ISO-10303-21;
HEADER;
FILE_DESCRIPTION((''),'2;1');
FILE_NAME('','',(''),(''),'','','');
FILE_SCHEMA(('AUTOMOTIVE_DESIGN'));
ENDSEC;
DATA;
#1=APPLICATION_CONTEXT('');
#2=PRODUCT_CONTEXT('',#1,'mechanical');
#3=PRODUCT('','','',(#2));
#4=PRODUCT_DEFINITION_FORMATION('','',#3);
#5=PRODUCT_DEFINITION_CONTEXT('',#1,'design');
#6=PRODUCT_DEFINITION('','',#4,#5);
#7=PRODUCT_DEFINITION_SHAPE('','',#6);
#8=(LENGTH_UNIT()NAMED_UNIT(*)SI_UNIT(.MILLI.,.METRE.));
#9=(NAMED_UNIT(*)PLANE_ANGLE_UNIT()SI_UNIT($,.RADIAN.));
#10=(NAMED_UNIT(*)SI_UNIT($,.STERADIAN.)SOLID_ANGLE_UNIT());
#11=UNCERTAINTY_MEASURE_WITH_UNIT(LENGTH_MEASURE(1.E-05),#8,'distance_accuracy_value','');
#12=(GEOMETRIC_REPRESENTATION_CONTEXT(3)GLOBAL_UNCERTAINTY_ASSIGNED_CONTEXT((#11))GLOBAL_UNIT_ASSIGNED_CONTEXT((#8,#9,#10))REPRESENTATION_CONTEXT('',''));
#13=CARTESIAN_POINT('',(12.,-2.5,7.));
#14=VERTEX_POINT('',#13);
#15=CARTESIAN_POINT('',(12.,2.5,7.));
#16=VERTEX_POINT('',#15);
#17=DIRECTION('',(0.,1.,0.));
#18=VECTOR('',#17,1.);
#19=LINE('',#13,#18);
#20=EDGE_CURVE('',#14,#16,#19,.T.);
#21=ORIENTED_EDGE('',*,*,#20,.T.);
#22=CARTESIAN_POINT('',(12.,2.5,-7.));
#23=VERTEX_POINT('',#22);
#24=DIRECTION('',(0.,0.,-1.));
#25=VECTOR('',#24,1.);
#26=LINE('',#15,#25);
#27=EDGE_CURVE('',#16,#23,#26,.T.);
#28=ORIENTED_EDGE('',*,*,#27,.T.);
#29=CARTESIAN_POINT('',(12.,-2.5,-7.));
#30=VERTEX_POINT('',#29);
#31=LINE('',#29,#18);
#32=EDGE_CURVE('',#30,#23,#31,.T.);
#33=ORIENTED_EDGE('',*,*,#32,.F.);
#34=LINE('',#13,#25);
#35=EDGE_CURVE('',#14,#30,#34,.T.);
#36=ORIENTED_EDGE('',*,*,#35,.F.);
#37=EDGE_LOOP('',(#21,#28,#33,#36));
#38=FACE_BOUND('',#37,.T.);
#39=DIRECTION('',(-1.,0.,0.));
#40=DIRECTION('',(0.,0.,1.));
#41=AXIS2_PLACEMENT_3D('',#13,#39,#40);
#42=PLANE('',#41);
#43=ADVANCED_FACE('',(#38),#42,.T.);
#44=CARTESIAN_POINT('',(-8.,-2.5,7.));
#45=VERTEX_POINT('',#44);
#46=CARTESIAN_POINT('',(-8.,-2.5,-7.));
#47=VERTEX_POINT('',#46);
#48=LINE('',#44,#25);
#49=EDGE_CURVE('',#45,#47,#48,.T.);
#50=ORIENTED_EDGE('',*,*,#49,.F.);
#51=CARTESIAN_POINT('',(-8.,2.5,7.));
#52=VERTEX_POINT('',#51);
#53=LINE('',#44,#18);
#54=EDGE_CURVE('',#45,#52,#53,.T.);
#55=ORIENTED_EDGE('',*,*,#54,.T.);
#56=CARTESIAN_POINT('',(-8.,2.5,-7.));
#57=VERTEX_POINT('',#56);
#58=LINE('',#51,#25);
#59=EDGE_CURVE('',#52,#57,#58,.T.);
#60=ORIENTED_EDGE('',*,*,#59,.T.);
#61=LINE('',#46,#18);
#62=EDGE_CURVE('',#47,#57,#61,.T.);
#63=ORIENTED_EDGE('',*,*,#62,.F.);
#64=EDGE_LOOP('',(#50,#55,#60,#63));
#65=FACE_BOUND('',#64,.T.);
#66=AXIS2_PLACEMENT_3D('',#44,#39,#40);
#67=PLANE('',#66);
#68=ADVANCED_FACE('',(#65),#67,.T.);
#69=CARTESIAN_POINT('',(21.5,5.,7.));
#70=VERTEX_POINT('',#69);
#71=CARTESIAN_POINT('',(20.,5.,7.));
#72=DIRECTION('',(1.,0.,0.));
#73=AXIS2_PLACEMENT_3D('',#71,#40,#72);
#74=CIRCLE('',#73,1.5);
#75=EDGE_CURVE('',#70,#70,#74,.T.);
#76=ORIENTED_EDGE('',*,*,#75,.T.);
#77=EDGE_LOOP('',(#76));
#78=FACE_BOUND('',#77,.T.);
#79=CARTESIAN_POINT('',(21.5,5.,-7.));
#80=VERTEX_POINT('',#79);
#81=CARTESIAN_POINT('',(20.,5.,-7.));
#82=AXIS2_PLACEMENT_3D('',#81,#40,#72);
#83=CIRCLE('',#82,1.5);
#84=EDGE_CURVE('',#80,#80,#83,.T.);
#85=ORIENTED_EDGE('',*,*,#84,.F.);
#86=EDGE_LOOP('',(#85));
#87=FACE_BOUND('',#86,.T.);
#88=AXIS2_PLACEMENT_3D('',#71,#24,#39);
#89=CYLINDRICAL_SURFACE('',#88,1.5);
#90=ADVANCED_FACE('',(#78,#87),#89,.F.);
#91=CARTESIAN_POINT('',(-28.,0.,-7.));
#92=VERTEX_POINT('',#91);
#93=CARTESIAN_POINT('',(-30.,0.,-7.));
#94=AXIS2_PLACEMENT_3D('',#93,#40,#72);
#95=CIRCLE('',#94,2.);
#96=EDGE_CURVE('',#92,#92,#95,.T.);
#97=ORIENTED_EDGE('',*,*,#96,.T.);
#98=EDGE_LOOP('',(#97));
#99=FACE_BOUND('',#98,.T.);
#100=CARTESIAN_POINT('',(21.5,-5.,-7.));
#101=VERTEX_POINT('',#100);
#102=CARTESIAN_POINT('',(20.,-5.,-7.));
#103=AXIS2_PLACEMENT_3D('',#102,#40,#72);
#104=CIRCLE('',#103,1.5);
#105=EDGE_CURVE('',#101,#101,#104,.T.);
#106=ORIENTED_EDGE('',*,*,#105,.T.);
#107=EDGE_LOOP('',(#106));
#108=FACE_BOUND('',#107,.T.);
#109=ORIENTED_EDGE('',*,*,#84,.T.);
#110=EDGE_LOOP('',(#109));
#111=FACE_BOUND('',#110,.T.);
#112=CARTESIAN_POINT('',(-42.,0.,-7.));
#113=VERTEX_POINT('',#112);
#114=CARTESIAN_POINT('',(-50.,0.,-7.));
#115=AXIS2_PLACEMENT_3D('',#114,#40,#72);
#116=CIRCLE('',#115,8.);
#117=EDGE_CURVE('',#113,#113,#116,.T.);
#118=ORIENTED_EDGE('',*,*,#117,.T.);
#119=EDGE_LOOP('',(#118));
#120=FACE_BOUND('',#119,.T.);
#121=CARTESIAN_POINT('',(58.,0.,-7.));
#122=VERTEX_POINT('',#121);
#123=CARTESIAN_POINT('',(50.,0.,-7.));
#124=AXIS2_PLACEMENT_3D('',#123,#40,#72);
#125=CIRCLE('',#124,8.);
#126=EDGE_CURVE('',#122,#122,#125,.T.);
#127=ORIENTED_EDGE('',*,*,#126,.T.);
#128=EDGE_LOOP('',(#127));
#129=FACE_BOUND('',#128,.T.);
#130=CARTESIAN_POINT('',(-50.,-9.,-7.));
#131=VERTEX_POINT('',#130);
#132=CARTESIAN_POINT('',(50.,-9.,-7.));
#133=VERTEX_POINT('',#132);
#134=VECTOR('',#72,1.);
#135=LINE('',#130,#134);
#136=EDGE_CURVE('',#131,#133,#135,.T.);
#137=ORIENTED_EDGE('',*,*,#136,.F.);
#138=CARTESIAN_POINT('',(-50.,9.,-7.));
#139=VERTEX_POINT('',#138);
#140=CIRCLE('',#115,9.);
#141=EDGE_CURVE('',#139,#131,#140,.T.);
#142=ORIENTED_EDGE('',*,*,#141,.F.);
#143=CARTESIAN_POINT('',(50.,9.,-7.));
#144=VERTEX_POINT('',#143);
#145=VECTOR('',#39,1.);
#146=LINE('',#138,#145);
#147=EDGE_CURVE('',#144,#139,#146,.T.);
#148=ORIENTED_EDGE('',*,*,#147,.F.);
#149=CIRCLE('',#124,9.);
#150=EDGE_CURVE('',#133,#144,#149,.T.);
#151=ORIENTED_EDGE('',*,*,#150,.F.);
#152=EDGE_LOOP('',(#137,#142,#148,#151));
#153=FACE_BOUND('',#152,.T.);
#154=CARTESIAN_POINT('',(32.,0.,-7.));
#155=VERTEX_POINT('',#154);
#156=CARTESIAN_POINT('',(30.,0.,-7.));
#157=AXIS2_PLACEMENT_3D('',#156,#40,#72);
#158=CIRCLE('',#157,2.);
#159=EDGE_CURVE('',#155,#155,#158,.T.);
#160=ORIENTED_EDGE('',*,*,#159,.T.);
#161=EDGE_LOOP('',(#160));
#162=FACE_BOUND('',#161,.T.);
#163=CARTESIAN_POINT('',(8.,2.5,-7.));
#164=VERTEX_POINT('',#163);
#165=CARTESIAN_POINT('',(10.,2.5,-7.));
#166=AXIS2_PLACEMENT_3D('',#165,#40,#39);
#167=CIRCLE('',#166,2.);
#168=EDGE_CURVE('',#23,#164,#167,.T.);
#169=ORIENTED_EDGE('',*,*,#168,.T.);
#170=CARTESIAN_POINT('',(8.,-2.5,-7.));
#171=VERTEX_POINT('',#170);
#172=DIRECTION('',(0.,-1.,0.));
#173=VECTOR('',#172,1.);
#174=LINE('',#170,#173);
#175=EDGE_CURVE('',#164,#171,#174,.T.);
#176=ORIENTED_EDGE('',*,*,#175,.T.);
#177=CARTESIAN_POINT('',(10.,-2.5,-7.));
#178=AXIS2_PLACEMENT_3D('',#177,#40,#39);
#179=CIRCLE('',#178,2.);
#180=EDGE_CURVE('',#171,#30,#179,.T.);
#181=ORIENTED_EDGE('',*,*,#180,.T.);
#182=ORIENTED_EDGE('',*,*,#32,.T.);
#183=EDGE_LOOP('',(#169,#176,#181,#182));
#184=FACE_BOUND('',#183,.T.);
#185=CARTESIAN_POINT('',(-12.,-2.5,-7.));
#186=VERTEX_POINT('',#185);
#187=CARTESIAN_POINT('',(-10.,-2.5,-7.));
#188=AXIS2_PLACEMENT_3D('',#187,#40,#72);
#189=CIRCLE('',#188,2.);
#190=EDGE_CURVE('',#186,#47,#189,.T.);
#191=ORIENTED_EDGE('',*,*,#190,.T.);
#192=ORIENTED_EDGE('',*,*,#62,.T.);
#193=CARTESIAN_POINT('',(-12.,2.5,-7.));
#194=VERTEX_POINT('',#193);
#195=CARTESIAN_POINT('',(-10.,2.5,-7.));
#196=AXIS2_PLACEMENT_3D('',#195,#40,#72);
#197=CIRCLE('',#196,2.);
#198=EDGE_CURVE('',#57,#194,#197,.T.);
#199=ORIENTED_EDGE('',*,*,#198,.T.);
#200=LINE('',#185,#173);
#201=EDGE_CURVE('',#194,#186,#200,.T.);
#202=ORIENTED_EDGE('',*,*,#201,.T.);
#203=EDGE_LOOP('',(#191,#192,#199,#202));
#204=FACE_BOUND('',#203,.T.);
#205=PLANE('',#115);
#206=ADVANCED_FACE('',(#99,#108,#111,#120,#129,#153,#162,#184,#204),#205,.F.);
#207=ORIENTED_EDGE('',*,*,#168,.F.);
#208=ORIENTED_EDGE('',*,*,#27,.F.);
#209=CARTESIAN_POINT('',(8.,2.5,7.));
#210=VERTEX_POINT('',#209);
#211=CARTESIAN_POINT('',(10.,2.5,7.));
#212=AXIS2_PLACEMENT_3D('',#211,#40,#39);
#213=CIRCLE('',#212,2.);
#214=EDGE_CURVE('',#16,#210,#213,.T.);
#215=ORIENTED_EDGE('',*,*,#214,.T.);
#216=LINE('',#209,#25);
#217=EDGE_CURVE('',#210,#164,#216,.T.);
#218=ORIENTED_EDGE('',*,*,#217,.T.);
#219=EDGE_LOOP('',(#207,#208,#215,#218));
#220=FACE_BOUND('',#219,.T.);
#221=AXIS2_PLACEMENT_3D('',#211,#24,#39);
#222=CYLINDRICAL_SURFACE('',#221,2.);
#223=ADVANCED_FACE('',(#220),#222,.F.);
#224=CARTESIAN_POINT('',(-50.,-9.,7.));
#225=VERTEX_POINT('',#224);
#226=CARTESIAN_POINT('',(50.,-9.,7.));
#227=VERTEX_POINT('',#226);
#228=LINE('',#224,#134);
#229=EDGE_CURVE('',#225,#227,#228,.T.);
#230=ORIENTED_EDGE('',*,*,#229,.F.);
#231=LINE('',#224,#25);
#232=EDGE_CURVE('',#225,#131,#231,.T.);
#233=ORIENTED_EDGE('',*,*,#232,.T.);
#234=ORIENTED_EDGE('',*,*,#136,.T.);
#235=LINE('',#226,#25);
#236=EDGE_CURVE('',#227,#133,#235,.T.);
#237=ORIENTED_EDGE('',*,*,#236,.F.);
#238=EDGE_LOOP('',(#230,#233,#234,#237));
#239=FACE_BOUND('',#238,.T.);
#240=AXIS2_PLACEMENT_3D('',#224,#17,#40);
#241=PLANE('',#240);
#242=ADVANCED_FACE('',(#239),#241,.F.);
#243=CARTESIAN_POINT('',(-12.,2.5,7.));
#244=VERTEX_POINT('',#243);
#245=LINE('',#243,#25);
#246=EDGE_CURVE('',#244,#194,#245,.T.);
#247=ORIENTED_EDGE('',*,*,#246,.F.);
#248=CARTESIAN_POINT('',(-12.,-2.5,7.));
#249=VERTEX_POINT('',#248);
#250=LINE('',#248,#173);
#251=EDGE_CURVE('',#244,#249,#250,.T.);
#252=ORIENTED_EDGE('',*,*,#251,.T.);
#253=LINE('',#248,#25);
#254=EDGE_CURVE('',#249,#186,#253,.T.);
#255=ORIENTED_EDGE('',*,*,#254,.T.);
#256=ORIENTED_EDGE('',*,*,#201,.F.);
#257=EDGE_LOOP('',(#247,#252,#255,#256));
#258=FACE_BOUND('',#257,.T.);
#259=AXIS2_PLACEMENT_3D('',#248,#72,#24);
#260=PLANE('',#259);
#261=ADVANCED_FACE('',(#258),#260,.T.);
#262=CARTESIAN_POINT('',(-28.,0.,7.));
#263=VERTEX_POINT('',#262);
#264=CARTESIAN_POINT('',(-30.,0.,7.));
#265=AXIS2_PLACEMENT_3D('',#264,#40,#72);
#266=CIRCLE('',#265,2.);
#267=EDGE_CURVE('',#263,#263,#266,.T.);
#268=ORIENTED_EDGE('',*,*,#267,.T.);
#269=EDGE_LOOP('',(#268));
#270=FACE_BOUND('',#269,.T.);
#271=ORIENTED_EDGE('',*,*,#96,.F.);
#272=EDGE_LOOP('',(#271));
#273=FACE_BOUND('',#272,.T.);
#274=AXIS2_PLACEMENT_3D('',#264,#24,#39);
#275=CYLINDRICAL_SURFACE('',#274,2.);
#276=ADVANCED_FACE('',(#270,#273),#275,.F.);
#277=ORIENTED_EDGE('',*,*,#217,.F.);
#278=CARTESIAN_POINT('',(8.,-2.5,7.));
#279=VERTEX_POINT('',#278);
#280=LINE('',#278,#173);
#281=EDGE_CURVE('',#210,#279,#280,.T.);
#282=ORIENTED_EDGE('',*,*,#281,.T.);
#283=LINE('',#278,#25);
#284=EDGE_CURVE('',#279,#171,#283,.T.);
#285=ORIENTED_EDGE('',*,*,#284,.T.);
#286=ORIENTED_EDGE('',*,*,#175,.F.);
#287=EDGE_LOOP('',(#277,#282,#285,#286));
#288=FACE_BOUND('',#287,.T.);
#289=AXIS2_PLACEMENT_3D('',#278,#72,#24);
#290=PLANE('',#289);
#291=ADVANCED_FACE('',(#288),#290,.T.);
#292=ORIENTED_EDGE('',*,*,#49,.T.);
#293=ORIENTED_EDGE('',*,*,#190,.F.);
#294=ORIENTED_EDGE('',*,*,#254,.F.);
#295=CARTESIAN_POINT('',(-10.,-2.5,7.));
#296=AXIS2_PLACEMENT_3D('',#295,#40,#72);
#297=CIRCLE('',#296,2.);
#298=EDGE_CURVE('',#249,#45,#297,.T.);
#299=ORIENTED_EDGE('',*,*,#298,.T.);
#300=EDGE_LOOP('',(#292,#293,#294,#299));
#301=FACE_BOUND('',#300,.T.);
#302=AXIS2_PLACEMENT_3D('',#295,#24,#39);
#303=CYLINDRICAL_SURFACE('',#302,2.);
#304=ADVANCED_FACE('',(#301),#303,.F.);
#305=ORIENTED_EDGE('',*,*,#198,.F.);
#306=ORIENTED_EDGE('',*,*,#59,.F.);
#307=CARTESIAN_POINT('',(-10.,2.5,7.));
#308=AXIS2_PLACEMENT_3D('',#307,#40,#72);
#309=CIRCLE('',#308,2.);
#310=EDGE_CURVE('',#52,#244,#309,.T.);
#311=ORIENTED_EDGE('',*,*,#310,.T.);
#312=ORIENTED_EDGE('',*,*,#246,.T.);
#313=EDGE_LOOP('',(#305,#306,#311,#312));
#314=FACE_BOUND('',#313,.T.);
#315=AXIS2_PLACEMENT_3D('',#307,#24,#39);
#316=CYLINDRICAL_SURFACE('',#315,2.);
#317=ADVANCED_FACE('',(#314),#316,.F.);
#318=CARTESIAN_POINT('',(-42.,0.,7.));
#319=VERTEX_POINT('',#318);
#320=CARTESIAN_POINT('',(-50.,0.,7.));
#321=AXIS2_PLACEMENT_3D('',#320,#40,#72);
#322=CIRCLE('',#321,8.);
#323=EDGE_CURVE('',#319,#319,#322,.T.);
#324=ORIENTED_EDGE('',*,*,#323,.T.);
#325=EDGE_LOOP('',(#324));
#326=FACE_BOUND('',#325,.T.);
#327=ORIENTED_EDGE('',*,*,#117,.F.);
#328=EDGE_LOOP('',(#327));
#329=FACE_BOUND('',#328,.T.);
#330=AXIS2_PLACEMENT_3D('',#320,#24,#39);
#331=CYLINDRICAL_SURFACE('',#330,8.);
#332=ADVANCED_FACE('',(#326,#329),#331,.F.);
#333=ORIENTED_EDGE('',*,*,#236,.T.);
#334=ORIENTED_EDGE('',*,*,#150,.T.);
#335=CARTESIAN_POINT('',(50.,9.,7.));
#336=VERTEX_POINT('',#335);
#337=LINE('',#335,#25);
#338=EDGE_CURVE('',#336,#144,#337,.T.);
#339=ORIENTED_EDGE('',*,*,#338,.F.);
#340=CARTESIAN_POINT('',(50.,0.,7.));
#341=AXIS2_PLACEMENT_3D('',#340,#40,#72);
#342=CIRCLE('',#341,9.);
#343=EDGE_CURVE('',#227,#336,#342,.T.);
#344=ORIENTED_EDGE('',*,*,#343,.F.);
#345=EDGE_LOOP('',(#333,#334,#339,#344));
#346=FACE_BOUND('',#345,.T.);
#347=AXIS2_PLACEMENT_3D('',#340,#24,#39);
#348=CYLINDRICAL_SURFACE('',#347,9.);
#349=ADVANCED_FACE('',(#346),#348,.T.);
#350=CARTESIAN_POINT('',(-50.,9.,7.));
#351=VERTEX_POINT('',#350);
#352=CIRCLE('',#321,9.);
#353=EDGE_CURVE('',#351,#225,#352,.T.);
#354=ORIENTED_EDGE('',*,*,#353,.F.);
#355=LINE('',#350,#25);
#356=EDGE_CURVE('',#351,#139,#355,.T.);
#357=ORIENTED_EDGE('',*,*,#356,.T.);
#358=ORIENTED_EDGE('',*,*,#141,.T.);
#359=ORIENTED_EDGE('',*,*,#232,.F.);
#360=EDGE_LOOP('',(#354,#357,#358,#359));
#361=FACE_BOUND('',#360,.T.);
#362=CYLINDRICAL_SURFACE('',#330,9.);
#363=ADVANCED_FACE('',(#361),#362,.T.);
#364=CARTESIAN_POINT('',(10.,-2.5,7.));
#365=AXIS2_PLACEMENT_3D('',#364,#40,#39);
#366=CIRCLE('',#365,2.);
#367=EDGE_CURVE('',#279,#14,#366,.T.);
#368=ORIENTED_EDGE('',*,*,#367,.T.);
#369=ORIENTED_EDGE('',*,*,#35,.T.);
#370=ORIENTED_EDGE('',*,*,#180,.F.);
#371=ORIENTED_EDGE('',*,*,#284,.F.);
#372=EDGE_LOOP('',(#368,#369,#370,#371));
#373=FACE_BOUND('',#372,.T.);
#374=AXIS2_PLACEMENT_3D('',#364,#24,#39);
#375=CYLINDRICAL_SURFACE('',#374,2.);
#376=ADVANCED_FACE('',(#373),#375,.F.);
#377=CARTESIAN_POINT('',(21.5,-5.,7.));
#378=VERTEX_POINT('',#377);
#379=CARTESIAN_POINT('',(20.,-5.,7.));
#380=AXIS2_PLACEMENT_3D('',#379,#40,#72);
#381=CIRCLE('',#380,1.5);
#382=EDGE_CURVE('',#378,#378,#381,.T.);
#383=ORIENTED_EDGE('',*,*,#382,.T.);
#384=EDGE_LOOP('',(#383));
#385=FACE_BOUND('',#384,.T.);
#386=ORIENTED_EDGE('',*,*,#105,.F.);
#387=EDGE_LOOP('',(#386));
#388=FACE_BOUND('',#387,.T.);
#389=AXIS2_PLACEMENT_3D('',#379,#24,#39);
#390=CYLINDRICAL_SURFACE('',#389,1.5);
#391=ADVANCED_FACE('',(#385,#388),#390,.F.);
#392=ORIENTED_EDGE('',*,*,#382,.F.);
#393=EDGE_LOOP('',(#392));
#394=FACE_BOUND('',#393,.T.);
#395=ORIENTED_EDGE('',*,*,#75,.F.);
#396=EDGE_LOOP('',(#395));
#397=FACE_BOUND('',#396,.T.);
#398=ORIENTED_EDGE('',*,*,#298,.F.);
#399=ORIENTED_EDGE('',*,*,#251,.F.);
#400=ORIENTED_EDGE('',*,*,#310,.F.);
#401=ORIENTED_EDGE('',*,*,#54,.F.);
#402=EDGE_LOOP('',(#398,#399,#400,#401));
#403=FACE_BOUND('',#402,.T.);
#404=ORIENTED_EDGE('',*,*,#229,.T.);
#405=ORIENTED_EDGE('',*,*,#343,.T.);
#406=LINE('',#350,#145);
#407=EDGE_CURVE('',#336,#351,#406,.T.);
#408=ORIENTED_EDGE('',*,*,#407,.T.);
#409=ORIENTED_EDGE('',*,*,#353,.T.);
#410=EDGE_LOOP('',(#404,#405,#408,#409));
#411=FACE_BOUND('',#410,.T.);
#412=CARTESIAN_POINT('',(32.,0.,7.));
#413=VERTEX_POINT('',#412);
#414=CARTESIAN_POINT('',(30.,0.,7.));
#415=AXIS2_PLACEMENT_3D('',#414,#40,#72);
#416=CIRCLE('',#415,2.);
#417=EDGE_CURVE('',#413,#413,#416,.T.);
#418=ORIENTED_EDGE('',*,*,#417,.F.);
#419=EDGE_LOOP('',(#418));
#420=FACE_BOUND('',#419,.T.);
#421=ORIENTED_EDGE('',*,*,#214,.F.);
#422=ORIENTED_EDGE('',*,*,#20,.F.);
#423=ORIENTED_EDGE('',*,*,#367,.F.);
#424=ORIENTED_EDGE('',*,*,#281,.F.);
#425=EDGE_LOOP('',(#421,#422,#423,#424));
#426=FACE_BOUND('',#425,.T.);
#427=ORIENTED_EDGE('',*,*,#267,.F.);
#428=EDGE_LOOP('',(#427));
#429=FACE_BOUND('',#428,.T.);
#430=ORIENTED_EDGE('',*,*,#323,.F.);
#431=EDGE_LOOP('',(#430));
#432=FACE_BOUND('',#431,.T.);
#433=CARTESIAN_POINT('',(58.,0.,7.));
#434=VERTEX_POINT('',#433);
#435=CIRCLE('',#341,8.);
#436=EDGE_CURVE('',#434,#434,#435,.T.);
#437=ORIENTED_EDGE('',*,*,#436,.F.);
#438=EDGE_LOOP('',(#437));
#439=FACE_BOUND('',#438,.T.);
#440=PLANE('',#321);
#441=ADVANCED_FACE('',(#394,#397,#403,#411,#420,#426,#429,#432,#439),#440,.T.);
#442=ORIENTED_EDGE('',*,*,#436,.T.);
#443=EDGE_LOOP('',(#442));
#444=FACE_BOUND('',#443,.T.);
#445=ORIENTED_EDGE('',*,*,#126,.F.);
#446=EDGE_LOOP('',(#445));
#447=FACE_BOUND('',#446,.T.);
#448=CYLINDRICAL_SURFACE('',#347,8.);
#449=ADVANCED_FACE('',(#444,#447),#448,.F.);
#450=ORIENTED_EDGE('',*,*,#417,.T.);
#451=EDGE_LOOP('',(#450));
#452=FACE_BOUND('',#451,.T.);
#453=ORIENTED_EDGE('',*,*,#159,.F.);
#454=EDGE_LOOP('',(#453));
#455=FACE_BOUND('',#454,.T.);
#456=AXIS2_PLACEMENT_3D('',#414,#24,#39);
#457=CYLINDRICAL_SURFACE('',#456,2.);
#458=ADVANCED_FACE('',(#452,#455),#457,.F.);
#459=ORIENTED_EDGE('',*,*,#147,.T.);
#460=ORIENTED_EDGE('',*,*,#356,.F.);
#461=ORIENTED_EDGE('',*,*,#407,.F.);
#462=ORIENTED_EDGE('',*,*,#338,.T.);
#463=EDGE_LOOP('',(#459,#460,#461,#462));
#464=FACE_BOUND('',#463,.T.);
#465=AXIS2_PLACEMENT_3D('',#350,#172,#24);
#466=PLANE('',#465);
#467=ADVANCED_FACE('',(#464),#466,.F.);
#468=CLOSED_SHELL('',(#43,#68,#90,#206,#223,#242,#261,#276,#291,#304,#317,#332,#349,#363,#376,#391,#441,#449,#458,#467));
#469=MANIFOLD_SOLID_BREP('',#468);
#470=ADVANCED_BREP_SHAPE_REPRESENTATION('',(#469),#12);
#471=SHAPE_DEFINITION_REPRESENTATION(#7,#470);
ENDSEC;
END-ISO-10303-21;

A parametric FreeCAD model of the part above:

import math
import FreeCAD as App
import Part
import Sketcher

doc = App.newDocument("Part")
body = doc.addObject("PartDesign::Body", "Body")

sketch1 = body.newObject("Sketcher::SketchObject", "Sketch")
sketch1.AttachmentSupport = (doc.getObject("XY_Plane"), [""])
sketch1.MapMode = "FlatFace"
sketch1.addGeometry(Part.LineSegment(App.Vector(50, 9, 0), App.Vector(-50, 9, 0)), False)
sketch1.addGeometry(Part.ArcOfCircle(Part.Circle(App.Vector(-50, 0, 0), App.Vector(0, 0, 1), 9), math.radians(90), math.radians(270)), False)
sketch1.addGeometry(Part.LineSegment(App.Vector(-50, -9, 0), App.Vector(50, -9, 0)), False)
sketch1.addGeometry(Part.ArcOfCircle(Part.Circle(App.Vector(50, 0, 0), App.Vector(0, 0, 1), 9), math.radians(-90), math.radians(90)), False)
sketch1.addGeometry(Part.Circle(App.Vector(20, -5, 0), App.Vector(0, 0, 1), 1.5), False)
sketch1.addGeometry(Part.Circle(App.Vector(50, 0, 0), App.Vector(0, 0, 1), 8), False)
sketch1.addGeometry(Part.Circle(App.Vector(30, 0, 0), App.Vector(0, 0, 1), 2), False)
sketch1.addGeometry(Part.ArcOfCircle(Part.Circle(App.Vector(10, -2.5, 0), App.Vector(0, 0, 1), 2), math.radians(180), math.radians(360)), False)
sketch1.addGeometry(Part.LineSegment(App.Vector(8, -2.5, 0), App.Vector(8, 2.5, 0)), False)
sketch1.addGeometry(Part.ArcOfCircle(Part.Circle(App.Vector(10, 2.5, 0), App.Vector(0, 0, 1), 2), math.radians(0), math.radians(180)), False)
sketch1.addGeometry(Part.LineSegment(App.Vector(12, 2.5, 0), App.Vector(12, -2.5, 0)), False)
sketch1.addGeometry(Part.Circle(App.Vector(20, 5, 0), App.Vector(0, 0, 1), 1.5), False)
sketch1.addGeometry(Part.LineSegment(App.Vector(-12, -2.5, 0), App.Vector(-12, 2.5, 0)), False)
sketch1.addGeometry(Part.ArcOfCircle(Part.Circle(App.Vector(-10, 2.5, 0), App.Vector(0, 0, 1), 2), math.radians(0), math.radians(180)), False)
sketch1.addGeometry(Part.LineSegment(App.Vector(-8, 2.5, 0), App.Vector(-8, -2.5, 0)), False)
sketch1.addGeometry(Part.ArcOfCircle(Part.Circle(App.Vector(-10, -2.5, 0), App.Vector(0, 0, 1), 2), math.radians(180), math.radians(360)), False)
sketch1.addGeometry(Part.Circle(App.Vector(-30, 0, 0), App.Vector(0, 0, 1), 2), False)
sketch1.addGeometry(Part.Circle(App.Vector(-50, 0, 0), App.Vector(0, 0, 1), 8), False)
sketch1.addConstraint(Sketcher.Constraint("Tangent", 0, 2, 1, 1))
sketch1.addConstraint(Sketcher.Constraint("Tangent", 1, 2, 2, 1))
sketch1.addConstraint(Sketcher.Constraint("Tangent", 2, 2, 3, 1))
sketch1.addConstraint(Sketcher.Constraint("Tangent", 3, 2, 0, 1))
sketch1.addConstraint(Sketcher.Constraint("Tangent", 7, 1, 8, 1))
sketch1.addConstraint(Sketcher.Constraint("Tangent", 8, 2, 9, 2))
sketch1.addConstraint(Sketcher.Constraint("Tangent", 9, 1, 10, 1))
sketch1.addConstraint(Sketcher.Constraint("Tangent", 10, 2, 7, 2))
sketch1.addConstraint(Sketcher.Constraint("Tangent", 12, 2, 13, 2))
sketch1.addConstraint(Sketcher.Constraint("Tangent", 13, 1, 14, 1))
sketch1.addConstraint(Sketcher.Constraint("Tangent", 14, 2, 15, 2))
sketch1.addConstraint(Sketcher.Constraint("Tangent", 15, 1, 12, 1))
sketch1.addConstraint(Sketcher.Constraint("Horizontal", 0))
sketch1.addConstraint(Sketcher.Constraint("Horizontal", 2))
sketch1.addConstraint(Sketcher.Constraint("Vertical", 8))
sketch1.addConstraint(Sketcher.Constraint("Vertical", 10))
sketch1.addConstraint(Sketcher.Constraint("Vertical", 12))
sketch1.addConstraint(Sketcher.Constraint("Vertical", 14))
sketch1.addConstraint(Sketcher.Constraint("Coincident", 5, 3, 3, 3))
sketch1.addConstraint(Sketcher.Constraint("Coincident", 17, 3, 1, 3))
sketch1.addConstraint(Sketcher.Constraint("Equal", 6, 7))
sketch1.addConstraint(Sketcher.Constraint("Equal", 4, 11))
sketch1.addConstraint(Sketcher.Constraint("Equal", 9, 13))
sketch1.addConstraint(Sketcher.Constraint("Equal", 15, 16))
sketch1.addConstraint(Sketcher.Constraint("Equal", 5, 17))
sketch1.addConstraint(Sketcher.Constraint("Symmetric", 1, 3, 3, 3, -1, 1))
sketch1.addConstraint(Sketcher.Constraint("Symmetric", 7, 3, 13, 3, -1, 1))
sketch1.addConstraint(Sketcher.Constraint("Symmetric", 6, 3, 16, 3, -1, 1))
sketch1.addConstraint(Sketcher.Constraint("Symmetric", 4, 3, 11, 3, -1))
sketch1.addConstraint(Sketcher.Constraint("PointOnObject", 6, 3, -1))
sketch1.addConstraint(Sketcher.Constraint("Horizontal", 9, 3, 13, 3))
sketch1.addConstraint(Sketcher.Constraint("Horizontal", 7, 3, 15, 3))
sketch1.addConstraint(Sketcher.Constraint("Diameter", 4, 3.0))
sketch1.addConstraint(Sketcher.Constraint("Diameter", 5, 16.0))
sketch1.addConstraint(Sketcher.Constraint("Diameter", 6, 4.0))
sketch1.addConstraint(Sketcher.Constraint("Radius", 1, 9.0))
sketch1.addConstraint(Sketcher.Constraint("DistanceX", 0, 2, 0, 1, 100.0))
sketch1.addConstraint(Sketcher.Constraint("DistanceY", 8, 1, 8, 2, 5.0))
sketch1.addConstraint(Sketcher.Constraint("DistanceX", -1, 1, 4, 3, 20.0))
sketch1.addConstraint(Sketcher.Constraint("DistanceY", 4, 3, -1, 1, 5.0))
sketch1.addConstraint(Sketcher.Constraint("DistanceX", -1, 1, 6, 3, 30.0))
sketch1.addConstraint(Sketcher.Constraint("DistanceX", -1, 1, 7, 3, 10.0))
pad1 = body.newObject("PartDesign::Pad", "Pad")
pad1.Profile = sketch1
pad1.Length = 14
pad1.Midplane = True

doc.recompute()
